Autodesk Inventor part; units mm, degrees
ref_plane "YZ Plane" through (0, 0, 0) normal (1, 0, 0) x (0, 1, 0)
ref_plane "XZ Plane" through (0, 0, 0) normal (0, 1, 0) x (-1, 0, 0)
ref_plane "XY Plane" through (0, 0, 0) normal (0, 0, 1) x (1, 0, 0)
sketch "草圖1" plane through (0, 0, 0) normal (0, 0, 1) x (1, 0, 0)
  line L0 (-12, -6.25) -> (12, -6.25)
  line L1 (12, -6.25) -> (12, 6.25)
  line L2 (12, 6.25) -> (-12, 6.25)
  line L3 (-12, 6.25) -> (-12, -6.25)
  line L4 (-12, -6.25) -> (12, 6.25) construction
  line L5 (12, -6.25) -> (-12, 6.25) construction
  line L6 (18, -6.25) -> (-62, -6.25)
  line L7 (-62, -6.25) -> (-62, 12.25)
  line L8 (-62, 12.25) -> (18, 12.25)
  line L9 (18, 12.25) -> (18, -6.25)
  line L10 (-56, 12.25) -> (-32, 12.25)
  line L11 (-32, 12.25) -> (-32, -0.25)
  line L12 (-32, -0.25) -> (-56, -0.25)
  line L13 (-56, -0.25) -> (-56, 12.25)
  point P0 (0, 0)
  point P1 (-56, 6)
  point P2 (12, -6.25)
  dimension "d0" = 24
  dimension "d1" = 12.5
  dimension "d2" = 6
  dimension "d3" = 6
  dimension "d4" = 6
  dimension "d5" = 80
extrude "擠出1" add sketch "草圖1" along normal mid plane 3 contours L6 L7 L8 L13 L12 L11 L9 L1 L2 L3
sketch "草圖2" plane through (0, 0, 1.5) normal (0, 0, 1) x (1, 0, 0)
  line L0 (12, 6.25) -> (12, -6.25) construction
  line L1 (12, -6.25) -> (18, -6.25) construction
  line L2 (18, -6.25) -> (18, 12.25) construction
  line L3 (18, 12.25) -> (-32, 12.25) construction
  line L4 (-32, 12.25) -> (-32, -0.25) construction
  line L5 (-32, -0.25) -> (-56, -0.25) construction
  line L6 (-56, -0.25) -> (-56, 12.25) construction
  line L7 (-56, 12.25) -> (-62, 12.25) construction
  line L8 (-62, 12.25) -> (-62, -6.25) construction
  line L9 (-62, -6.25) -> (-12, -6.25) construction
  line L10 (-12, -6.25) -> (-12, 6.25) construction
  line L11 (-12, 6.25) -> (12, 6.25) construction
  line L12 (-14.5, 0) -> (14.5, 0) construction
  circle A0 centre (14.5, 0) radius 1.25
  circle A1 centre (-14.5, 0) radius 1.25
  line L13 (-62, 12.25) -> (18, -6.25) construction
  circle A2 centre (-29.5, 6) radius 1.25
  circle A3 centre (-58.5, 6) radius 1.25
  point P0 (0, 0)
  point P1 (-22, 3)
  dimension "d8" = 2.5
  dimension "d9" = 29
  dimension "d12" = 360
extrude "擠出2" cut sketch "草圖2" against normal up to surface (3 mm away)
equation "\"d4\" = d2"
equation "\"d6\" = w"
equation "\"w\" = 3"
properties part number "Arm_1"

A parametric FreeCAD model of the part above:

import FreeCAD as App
import Part
import Sketcher
Q = App.Units.Quantity


def add_polygon(sketch, points):
    """Adds a closed chain of lines whose ends are joined by coincident constraints."""
    first, n = sketch.GeometryCount, len(points)
    for a, b in zip(points, points[1:] + points[:1]):
        sketch.addGeometry(Part.LineSegment(App.Vector(*a, 0), App.Vector(*b, 0)), False)
    for i in range(n):
        sketch.addConstraint(Sketcher.Constraint("Coincident", first + i, 2, first + (i + 1) % n, 1))

doc = App.newDocument("Part")
body = doc.addObject("PartDesign::Body", "Body")

sketch1 = body.newObject("Sketcher::SketchObject", "Sketch")
sketch1.AttachmentSupport = (doc.getObject("XY_Plane"), [""])
sketch1.MapMode = "FlatFace"
add_polygon(sketch1, [(-62, -6), (-12, -6), (-12, 6), (12, 6), (12, -6), (18, -6), (18, 12), (-32, 12), (-32, 0), (-56, 0), (-56, 12), (-62, 12)])
sketch1.addConstraint(Sketcher.Constraint("Horizontal", 0))
sketch1.addConstraint(Sketcher.Constraint("Vertical", 1))
sketch1.addConstraint(Sketcher.Constraint("Horizontal", 2))
sketch1.addConstraint(Sketcher.Constraint("Vertical", 3))
sketch1.addConstraint(Sketcher.Constraint("Horizontal", 4))
sketch1.addConstraint(Sketcher.Constraint("Vertical", 5))
sketch1.addConstraint(Sketcher.Constraint("Horizontal", 6))
sketch1.addConstraint(Sketcher.Constraint("Vertical", 7))
sketch1.addConstraint(Sketcher.Constraint("Horizontal", 8))
sketch1.addConstraint(Sketcher.Constraint("Vertical", 9))
sketch1.addConstraint(Sketcher.Constraint("Horizontal", 10))
sketch1.addConstraint(Sketcher.Constraint("Vertical", 11))
sketch1.addConstraint(Sketcher.Constraint("Symmetric", 0, 2, 2, 2, -1, 1))
sketch1.addConstraint(Sketcher.Constraint("Horizontal", 0, 2, 3, 2))
sketch1.addConstraint(Sketcher.Constraint("Horizontal", 6, 2, 9, 2))
sketch1.addConstraint(Sketcher.Constraint("Equal", 0, 6))
sketch1.addConstraint(Sketcher.Constraint("Equal", 2, 8))
sketch1.addConstraint(Sketcher.Constraint("Equal", 3, 7))
sketch1.addConstraint(Sketcher.Constraint("DistanceX", 2, 1, 2, 2, Q("24 mm")))
sketch1.addConstraint(Sketcher.Constraint("DistanceX", 4, 1, 4, 2, Q("6 mm")))
sketch1.addConstraint(Sketcher.Constraint("DistanceY", 1, 1, 1, 2, Q("12.5 mm")))
sketch1.addConstraint(Sketcher.Constraint("DistanceY", 2, 2, 5, 2, Q("6 mm")))
sketch1.addConstraint(Sketcher.Constraint("DistanceX", 0, 1, 0, 2, Q("50 mm")))
pad1 = body.newObject("PartDesign::Pad", "Pad")
pad1.Profile = sketch1
pad1.Length = 3
pad1.Midplane = True

sketch2 = body.newObject("Sketcher::SketchObject", "Sketch001")
sketch2.AttachmentSupport = (doc.getObject("XY_Plane"), [""])
sketch2.MapMode = "FlatFace"
sketch2.AttachmentOffset = App.Placement(App.Vector(0, 0, 1.5), App.Rotation())
sketch2.addGeometry(Part.Circle(App.Vector(14.5, 0, 0), App.Vector(0, 0, 1), 1.2), False)
sketch2.addGeometry(Part.Circle(App.Vector(-14.5, 0, 0), App.Vector(0, 0, 1), 1.2), False)
sketch2.addGeometry(Part.Circle(App.Vector(-29.5, 6, 0), App.Vector(0, 0, 1), 1.2), False)
sketch2.addGeometry(Part.Circle(App.Vector(-58.5, 6, 0), App.Vector(0, 0, 1), 1.2), False)
sketch2.addConstraint(Sketcher.Constraint("Equal", 0, 1))
sketch2.addConstraint(Sketcher.Constraint("Equal", 1, 2))
sketch2.addConstraint(Sketcher.Constraint("Equal", 2, 3))
sketch2.addConstraint(Sketcher.Constraint("Symmetric", 0, 3, 1, 3, -1, 1))
sketch2.addConstraint(Sketcher.Constraint("PointOnObject", 0, 3, -1))
sketch2.addConstraint(Sketcher.Constraint("Horizontal", 2, 3, 3, 3))
sketch2.addConstraint(Sketcher.Constraint("Diameter", 0, Q("2.5 mm")))
sketch2.addConstraint(Sketcher.Constraint("DistanceX", 1, 3, 0, 3, Q("29 mm")))
sketch2.addConstraint(Sketcher.Constraint("DistanceX", 3, 3, 2, 3, Q("29 mm")))
sketch2.addConstraint(Sketcher.Constraint("DistanceY", -1, 1, 2, 3, Q("6 mm")))
sketch2.addConstraint(Sketcher.Constraint("DistanceX", 2, 3, 1, 3, Q("15 mm")))
pocket1 = body.newObject("PartDesign::Pocket", "Pocket")
pocket1.Profile = sketch2
pocket1.Length = 3

doc.recompute()
